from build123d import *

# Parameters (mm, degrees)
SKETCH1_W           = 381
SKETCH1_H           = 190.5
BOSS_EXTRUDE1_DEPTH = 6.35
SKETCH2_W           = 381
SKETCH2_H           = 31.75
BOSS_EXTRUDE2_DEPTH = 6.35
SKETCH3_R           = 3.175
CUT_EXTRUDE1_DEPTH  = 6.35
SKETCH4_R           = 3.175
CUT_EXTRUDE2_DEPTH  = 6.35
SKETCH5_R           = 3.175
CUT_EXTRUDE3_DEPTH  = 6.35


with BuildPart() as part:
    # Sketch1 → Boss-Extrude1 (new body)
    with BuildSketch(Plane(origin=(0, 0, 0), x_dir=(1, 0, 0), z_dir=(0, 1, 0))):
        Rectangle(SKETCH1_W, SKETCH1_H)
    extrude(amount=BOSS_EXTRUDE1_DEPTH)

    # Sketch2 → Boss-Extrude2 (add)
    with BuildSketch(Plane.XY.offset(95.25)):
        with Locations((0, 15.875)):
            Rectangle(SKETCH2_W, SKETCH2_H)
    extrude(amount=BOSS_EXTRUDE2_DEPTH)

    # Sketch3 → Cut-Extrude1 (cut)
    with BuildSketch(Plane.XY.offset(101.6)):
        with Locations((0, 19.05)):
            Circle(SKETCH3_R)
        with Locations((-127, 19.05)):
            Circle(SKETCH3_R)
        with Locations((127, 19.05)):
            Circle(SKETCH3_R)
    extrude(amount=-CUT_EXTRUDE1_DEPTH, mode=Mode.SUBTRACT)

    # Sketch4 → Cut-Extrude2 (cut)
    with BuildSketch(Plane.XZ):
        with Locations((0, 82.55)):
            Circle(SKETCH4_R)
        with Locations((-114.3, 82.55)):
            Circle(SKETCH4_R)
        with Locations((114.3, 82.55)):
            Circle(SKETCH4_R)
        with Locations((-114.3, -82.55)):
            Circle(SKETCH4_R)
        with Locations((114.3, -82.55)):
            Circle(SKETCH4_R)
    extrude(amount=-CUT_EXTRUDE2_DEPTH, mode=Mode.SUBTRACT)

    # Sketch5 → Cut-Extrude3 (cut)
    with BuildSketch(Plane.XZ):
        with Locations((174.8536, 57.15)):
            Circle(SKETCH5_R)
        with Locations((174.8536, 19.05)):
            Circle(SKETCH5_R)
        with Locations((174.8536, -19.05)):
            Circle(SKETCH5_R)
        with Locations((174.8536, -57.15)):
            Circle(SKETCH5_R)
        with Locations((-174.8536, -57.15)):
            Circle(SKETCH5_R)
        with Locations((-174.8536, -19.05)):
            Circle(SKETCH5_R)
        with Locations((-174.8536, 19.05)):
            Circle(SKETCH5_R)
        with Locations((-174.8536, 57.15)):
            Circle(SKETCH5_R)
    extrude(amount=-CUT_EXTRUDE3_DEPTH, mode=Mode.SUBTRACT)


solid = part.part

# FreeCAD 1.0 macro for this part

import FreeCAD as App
import Part
import Sketcher

V = App.Vector
Q = App.Units.Quantity

doc = App.newDocument("Part")
body = doc.addObject("PartDesign::Body", "Body")

# Sketch on XZ plane
sketch1 = doc.addObject("Sketcher::SketchObject", "Sketch")
body.addObject(sketch1)
sketch1.AttachmentSupport = (doc.XZ_Plane, [""])
sketch1.MapMode = "FlatFace"
sketch1.addGeometry([
    Part.LineSegment(V(-190, -95, 0), V(-190, 95, 0)),
    Part.LineSegment(V(-190, 95, 0), V(190, 95, 0)),
    Part.LineSegment(V(190, 95, 0), V(190, -95, 0)),
    Part.LineSegment(V(190, -95, 0), V(-190, -95, 0)),
], False)
sketch1.addConstraint([
    Sketcher.Constraint("Coincident", 0, 2, 1, 1),
    Sketcher.Constraint("Coincident", 1, 2, 2, 1),
    Sketcher.Constraint("Coincident", 2, 2, 3, 1),
    Sketcher.Constraint("Coincident", 3, 2, 0, 1),
    Sketcher.Constraint("Vertical", 0),
    Sketcher.Constraint("Horizontal", 1),
    Sketcher.Constraint("Vertical", 2),
    Sketcher.Constraint("Horizontal", 3),
    Sketcher.Constraint("Symmetric", 0, 2, 2, 2, -1, 1),
    Sketcher.Constraint("DistanceX", 1, 1, 1, 2, Q("15 in")),
    Sketcher.Constraint("DistanceY", 0, 1, 0, 2, Q("7.5 in")),
])
pad1 = doc.addObject("PartDesign::Pad", "Pad")
body.addObject(pad1)
pad1.Profile = sketch1
pad1.Length = Q("0.25 in")
pad1.Reversed = True

# Sketch on XY plane
sketch2 = doc.addObject("Sketcher::SketchObject", "Sketch001")
body.addObject(sketch2)
sketch2.AttachmentSupport = (doc.XY_Plane, [""])
sketch2.MapMode = "FlatFace"
sketch2.AttachmentOffset = App.Placement(V(0, 0, 3.75 * 25.4), App.Rotation())
sketch2.addGeometry([
    Part.LineSegment(V(-190, 32, 0), V(-190, 0, 0)),
    Part.LineSegment(V(-190, 0, 0), V(190, 0, 0)),
    Part.LineSegment(V(190, 0, 0), V(190, 32, 0)),
    Part.LineSegment(V(190, 32, 0), V(-190, 32, 0)),
], False)
sketch2.addConstraint([
    Sketcher.Constraint("Coincident", 0, 2, 1, 1),
    Sketcher.Constraint("Coincident", 1, 2, 2, 1),
    Sketcher.Constraint("Coincident", 2, 2, 3, 1),
    Sketcher.Constraint("Coincident", 3, 2, 0, 1),
    Sketcher.Constraint("Vertical", 0),
    Sketcher.Constraint("Horizontal", 1),
    Sketcher.Constraint("Vertical", 2),
    Sketcher.Constraint("Horizontal", 3),
    Sketcher.Constraint("Symmetric", 0, 2, 1, 2, -1, 1),
    Sketcher.Constraint("DistanceX", 1, 1, 1, 2, Q("15 in")),
    Sketcher.Constraint("DistanceY", 0, 2, 0, 1, Q("1.25 in")),
])
pad2 = doc.addObject("PartDesign::Pad", "Pad001")
body.addObject(pad2)
pad2.Profile = sketch2
pad2.Length = Q("0.25 in")

# Sketch on XY plane
sketch3 = doc.addObject("Sketcher::SketchObject", "Sketch002")
body.addObject(sketch3)
sketch3.AttachmentSupport = (doc.XY_Plane, [""])
sketch3.MapMode = "FlatFace"
sketch3.AttachmentOffset = App.Placement(V(0, 0, 4 * 25.4), App.Rotation())
sketch3.addGeometry([
    Part.Circle(V(0, 19.1, 0), V(0, 0, 1), 3.2),
    Part.Circle(V(-127, 19.1, 0), V(0, 0, 1), 3.2),
    Part.Circle(V(127, 19.1, 0), V(0, 0, 1), 3.2),
], False)
sketch3.addConstraint([
    Sketcher.Constraint("Equal", 0, 1),
    Sketcher.Constraint("Equal", 1, 2),
    Sketcher.Constraint("Symmetric", 1, 3, 2, 3, -2),
    Sketcher.Constraint("PointOnObject", 0, 3, -2),
    Sketcher.Constraint("Horizontal", 0, 3, 1, 3),
    Sketcher.Constraint("Diameter", 0, Q("0.25 in")),
    Sketcher.Constraint("DistanceX", 1, 3, -1, 1, Q("5 in")),
    Sketcher.Constraint("DistanceY", -1, 1, 0, 3, Q("0.75 in")),
])
pocket1 = doc.addObject("PartDesign::Pocket", "Pocket")
body.addObject(pocket1)
pocket1.Profile = sketch3
pocket1.Length = Q("0.25 in")

# Sketch on XZ plane
sketch4 = doc.addObject("Sketcher::SketchObject", "Sketch003")
body.addObject(sketch4)
sketch4.AttachmentSupport = (doc.XZ_Plane, [""])
sketch4.MapMode = "FlatFace"
sketch4.addGeometry([
    Part.Circle(V(0, 82.5, 0), V(0, 0, 1), 3.2),  # 0
    Part.Circle(V(-114.3, 82.5, 0), V(0, 0, 1), 3.2),  # 1
    Part.Circle(V(114.3, 82.5, 0), V(0, 0, 1), 3.2),  # 2
    Part.Circle(V(-114.3, -82.5, 0), V(0, 0, 1), 3.2),  # 3
    Part.Circle(V(114.3, -82.5, 0), V(0, 0, 1), 3.2),  # 4
], False)
sketch4.addConstraint([
    Sketcher.Constraint("Equal", 0, 1),
    Sketcher.Constraint("Equal", 1, 2),
    Sketcher.Constraint("Equal", 2, 3),
    Sketcher.Constraint("Equal", 3, 4),
    Sketcher.Constraint("Symmetric", 2, 3, 3, 3, -1, 1),
    Sketcher.Constraint("Symmetric", 1, 3, 4, 3, -1, 1),
    Sketcher.Constraint("Symmetric", 1, 3, 2, 3, -2),
    Sketcher.Constraint("PointOnObject", 0, 3, -2),
    Sketcher.Constraint("Horizontal", 0, 3, 1, 3),
    Sketcher.Constraint("Diameter", 0, Q("0.25 in")),
    Sketcher.Constraint("DistanceX", 1, 3, 2, 3, Q("9 in")),
    Sketcher.Constraint("DistanceY", 3, 3, 1, 3, Q("6.5 in")),
])
pocket2 = doc.addObject("PartDesign::Pocket", "Pocket001")
body.addObject(pocket2)
pocket2.Profile = sketch4
pocket2.Length = Q("0.25 in")

# Sketch on XZ plane
sketch5 = doc.addObject("Sketcher::SketchObject", "Sketch004")
body.addObject(sketch5)
sketch5.AttachmentSupport = (doc.XZ_Plane, [""])
sketch5.MapMode = "FlatFace"
sketch5.addGeometry([
    Part.Circle(V(174.9, 57.1, 0), V(0, 0, 1), 3.2),  # 0
    Part.Circle(V(174.9, 19.1, 0), V(0, 0, 1), 3.2),  # 1
    Part.Circle(V(174.9, -19.1, 0), V(0, 0, 1), 3.2),  # 2
    Part.Circle(V(174.9, -57.1, 0), V(0, 0, 1), 3.2),  # 3
    Part.Circle(V(-174.9, -57.1, 0), V(0, 0, 1), 3.2),  # 4
    Part.Circle(V(-174.9, -19.1, 0), V(0, 0, 1), 3.2),  # 5
    Part.Circle(V(-174.9, 19.1, 0), V(0, 0, 1), 3.2),  # 6
    Part.Circle(V(-174.9, 57.1, 0), V(0, 0, 1), 3.2),  # 7
], False)
sketch5.addConstraint([
    Sketcher.Constraint("Equal", 0, 1),
    Sketcher.Constraint("Equal", 1, 2),
    Sketcher.Constraint("Equal", 2, 3),
    Sketcher.Constraint("Equal", 3, 4),
    Sketcher.Constraint("Equal", 4, 5),
    Sketcher.Constraint("Equal", 5, 6),
    Sketcher.Constraint("Equal", 6, 7),
    Sketcher.Constraint("Symmetric", 0, 3, 4, 3, -1, 1),
    Sketcher.Constraint("Symmetric", 1, 3, 5, 3, -1, 1),
    Sketcher.Constraint("Symmetric", 2, 3, 6, 3, -1, 1),
    Sketcher.Constraint("Symmetric", 3, 3, 7, 3, -1, 1),
    Sketcher.Constraint("Symmetric", 3, 3, 4, 3, -2),
    Sketcher.Constraint("Symmetric", 2, 3, 5, 3, -2),
    Sketcher.Constraint("Vertical", 0, 3, 1, 3),
    Sketcher.Constraint("Diameter", 0, Q("0.25 in")),
    Sketcher.Constraint("DistanceY", 2, 3, 0, 3, Q("3 in")),
    Sketcher.Constraint("DistanceY", 1, 3, 0, 3, Q("1.5 in")),
    Sketcher.Constraint("DistanceX", -1, 1, 0, 3, Q("6.884 in")),
])
pocket3 = doc.addObject("PartDesign::Pocket", "Pocket002")
body.addObject(pocket3)
pocket3.Profile = sketch5
pocket3.Length = Q("0.25 in")

doc.recompute()
